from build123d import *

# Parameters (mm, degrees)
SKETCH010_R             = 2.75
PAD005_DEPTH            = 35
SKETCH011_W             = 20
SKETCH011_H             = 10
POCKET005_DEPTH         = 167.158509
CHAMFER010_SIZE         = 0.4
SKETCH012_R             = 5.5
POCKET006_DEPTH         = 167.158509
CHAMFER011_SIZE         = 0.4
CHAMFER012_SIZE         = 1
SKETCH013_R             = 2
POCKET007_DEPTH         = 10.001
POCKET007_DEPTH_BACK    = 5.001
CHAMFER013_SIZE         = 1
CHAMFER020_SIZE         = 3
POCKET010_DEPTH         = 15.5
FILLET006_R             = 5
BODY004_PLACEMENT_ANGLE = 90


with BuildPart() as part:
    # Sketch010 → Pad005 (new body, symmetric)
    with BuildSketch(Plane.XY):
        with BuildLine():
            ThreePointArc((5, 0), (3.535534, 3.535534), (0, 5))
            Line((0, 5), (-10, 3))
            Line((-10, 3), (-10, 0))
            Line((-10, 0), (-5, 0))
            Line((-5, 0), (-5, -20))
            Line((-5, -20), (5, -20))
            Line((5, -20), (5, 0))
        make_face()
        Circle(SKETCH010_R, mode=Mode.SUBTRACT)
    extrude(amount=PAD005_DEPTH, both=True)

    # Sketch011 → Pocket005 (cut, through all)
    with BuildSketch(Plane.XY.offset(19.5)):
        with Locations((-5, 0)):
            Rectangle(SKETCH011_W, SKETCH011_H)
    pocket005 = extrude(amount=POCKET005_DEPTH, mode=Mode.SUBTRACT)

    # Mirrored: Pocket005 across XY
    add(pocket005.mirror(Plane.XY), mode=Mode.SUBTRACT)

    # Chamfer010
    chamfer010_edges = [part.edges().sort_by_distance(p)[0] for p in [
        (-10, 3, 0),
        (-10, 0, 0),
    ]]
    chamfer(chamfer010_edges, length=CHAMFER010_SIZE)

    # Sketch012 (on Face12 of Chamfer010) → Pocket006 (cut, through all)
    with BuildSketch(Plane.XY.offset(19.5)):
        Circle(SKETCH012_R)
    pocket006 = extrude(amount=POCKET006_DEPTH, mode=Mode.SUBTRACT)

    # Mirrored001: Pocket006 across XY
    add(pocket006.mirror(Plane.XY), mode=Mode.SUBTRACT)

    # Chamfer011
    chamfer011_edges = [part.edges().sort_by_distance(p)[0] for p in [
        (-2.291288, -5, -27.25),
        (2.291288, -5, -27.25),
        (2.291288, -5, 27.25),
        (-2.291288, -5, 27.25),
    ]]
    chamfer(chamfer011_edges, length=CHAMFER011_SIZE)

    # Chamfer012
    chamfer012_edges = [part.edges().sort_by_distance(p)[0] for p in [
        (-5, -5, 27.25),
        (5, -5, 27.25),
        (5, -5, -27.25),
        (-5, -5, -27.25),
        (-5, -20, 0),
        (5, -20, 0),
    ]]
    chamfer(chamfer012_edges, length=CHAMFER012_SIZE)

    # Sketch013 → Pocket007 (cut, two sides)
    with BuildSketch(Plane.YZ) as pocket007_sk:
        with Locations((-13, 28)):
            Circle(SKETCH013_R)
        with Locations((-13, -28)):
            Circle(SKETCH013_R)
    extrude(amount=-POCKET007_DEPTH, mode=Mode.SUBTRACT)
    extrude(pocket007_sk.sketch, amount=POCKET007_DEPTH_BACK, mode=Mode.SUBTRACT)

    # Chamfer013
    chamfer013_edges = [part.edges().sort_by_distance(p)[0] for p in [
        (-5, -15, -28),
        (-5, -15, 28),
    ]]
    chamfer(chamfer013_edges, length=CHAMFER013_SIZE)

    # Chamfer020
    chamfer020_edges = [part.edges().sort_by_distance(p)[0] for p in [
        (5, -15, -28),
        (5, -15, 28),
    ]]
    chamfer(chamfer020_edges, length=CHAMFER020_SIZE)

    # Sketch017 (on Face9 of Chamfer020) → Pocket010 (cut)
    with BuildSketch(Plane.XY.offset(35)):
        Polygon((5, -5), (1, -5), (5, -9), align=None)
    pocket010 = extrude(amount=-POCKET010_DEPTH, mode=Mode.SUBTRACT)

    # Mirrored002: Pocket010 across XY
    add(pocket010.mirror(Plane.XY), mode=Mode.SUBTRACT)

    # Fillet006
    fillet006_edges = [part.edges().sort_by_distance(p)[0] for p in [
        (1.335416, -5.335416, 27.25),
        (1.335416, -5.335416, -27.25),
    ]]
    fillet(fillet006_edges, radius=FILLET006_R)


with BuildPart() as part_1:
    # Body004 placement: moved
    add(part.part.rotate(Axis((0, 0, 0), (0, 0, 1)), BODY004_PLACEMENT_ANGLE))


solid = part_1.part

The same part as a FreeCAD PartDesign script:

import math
import FreeCAD as App
import Part
import Sketcher
from FreeCAD import Vector
Q = App.Units.Quantity


def edges_at(feature, points):
    """Names of the edges that pass closest to the given points."""
    edges = feature.Shape.Edges
    near = lambda p: min(range(len(edges)), key=lambda i: edges[i].distToShape(Part.Vertex(*p))[0])
    return sorted({f"Edge{near(p) + 1}" for p in points})

doc = App.newDocument("Part")
params = doc.addObject("Spreadsheet::Sheet", "Params")
for row, (alias, value) in enumerate([
    ("sketch1_radius", "5 mm"),
    ("sketch1_diameter", "5.5 mm"),
    ("sketch1_width", "5 mm"),
    ("sketch1_height", "3 mm"),
    ("sketch1_height2", "20 mm"),
    ("pad1_length", "70 mm"),
    ("sketch2_width", "20 mm"),
    ("sketch2_height", "10 mm"),
    ("chamfer_size", "0.4 mm"),
    ("sketch3_diameter", "11 mm"),
    ("chamfer2_size", "0.4 mm"),
    ("chamfer3_size", "1 mm"),
    ("sketch4_diameter", "4 mm"),
    ("chamfer4_size", "1 mm"),
    ("chamfer5_size", "3 mm"),
    ("sketch5_width", "4 mm"),
    ("pocket4_length", "15.5 mm"),
    ("fillet_radius", "5 mm"),
], start=1):
    params.set(f"A{row}", alias)
    params.set(f"B{row}", "=" + value)
    params.setAlias(f"B{row}", alias)

body = doc.addObject("PartDesign::Body", "Body")

# Sketch on XY plane
sketch1 = body.newObject("Sketcher::SketchObject", "Sketch")
sketch1.AttachmentSupport = (doc.getObject("XY_Plane"), [""])
sketch1.MapMode = "FlatFace"
sketch1.addGeometry(Part.ArcOfCircle(Part.Circle(Vector(0, 0, 0), Vector(0, 0, 1), 5), math.radians(0), math.radians(90)), False)
sketch1.addGeometry(Part.LineSegment(Vector(0, 5, 0), Vector(-10, 3, 0)), False)
sketch1.addGeometry(Part.LineSegment(Vector(-10, 3, 0), Vector(-10, 0, 0)), False)
sketch1.addGeometry(Part.LineSegment(Vector(-10, 0, 0), Vector(-5, 0, 0)), False)
sketch1.addGeometry(Part.LineSegment(Vector(-5, 0, 0), Vector(-5, -20, 0)), False)
sketch1.addGeometry(Part.LineSegment(Vector(-5, -20, 0), Vector(5, -20, 0)), False)
sketch1.addGeometry(Part.LineSegment(Vector(5, -20, 0), Vector(5, 0, 0)), False)
sketch1.addGeometry(Part.Circle(Vector(0, 0, 0), Vector(0, 0, 1), 2.8), False)
sketch1.addConstraint(Sketcher.Constraint("Coincident", 0, 2, 1, 1))
sketch1.addConstraint(Sketcher.Constraint("Coincident", 1, 2, 2, 1))
sketch1.addConstraint(Sketcher.Constraint("Coincident", 2, 2, 3, 1))
sketch1.addConstraint(Sketcher.Constraint("Coincident", 3, 2, 4, 1))
sketch1.addConstraint(Sketcher.Constraint("Coincident", 4, 2, 5, 1))
sketch1.addConstraint(Sketcher.Constraint("Coincident", 5, 2, 6, 1))
sketch1.addConstraint(Sketcher.Constraint("Tangent", 6, 2, 0, 1))
sketch1.addConstraint(Sketcher.Constraint("Vertical", 2))
sketch1.addConstraint(Sketcher.Constraint("Horizontal", 3))
sketch1.addConstraint(Sketcher.Constraint("Vertical", 4))
sketch1.addConstraint(Sketcher.Constraint("Horizontal", 5))
sketch1.addConstraint(Sketcher.Constraint("Vertical", 6))
sketch1.addConstraint(Sketcher.Constraint("Coincident", 0, 3, -1, 1))
sketch1.addConstraint(Sketcher.Constraint("Coincident", 7, 3, -1, 1))
sketch1.addConstraint(Sketcher.Constraint("Symmetric", 3, 2, 6, 2, -1, 1))
sketch1.addConstraint(Sketcher.Constraint("PointOnObject", 0, 2, -2))
sketch1.addConstraint(Sketcher.Constraint("Radius", 0, Q("5 mm")))
sketch1.addConstraint(Sketcher.Constraint("Diameter", 7, Q("5.5 mm")))
sketch1.addConstraint(Sketcher.Constraint("DistanceX", 3, 1, 3, 2, Q("5 mm")))
sketch1.addConstraint(Sketcher.Constraint("DistanceY", 2, 2, 2, 1, Q("3 mm")))
sketch1.addConstraint(Sketcher.Constraint("DistanceY", 4, 2, 4, 1, Q("20 mm")))
sketch1.setExpression("Constraints[16]", "Params.sketch1_radius")
sketch1.setExpression("Constraints[17]", "Params.sketch1_diameter")
sketch1.setExpression("Constraints[18]", "Params.sketch1_width")
sketch1.setExpression("Constraints[19]", "Params.sketch1_height")
sketch1.setExpression("Constraints[20]", "Params.sketch1_height2")
pad1 = body.newObject("PartDesign::Pad", "Pad")
pad1.Profile = sketch1
pad1.setExpression("Length", "Params.pad1_length")
pad1.Midplane = True

# Sketch on XY plane
sketch2 = body.newObject("Sketcher::SketchObject", "Sketch001")
sketch2.AttachmentSupport = (doc.getObject("XY_Plane"), [""])
sketch2.MapMode = "FlatFace"
sketch2.AttachmentOffset = App.Placement(Vector(0, 0, 19.5), App.Rotation())
sketch2.addGeometry(Part.LineSegment(Vector(-15, 5, 0), Vector(-15, -5, 0)), False)
sketch2.addGeometry(Part.LineSegment(Vector(-15, -5, 0), Vector(5, -5, 0)), False)
sketch2.addGeometry(Part.LineSegment(Vector(5, -5, 0), Vector(5, 5, 0)), False)
sketch2.addGeometry(Part.LineSegment(Vector(5, 5, 0), Vector(-15, 5, 0)), False)
sketch2.addConstraint(Sketcher.Constraint("Coincident", 0, 2, 1, 1))
sketch2.addConstraint(Sketcher.Constraint("Coincident", 1, 2, 2, 1))
sketch2.addConstraint(Sketcher.Constraint("Coincident", 2, 2, 3, 1))
sketch2.addConstraint(Sketcher.Constraint("Coincident", 3, 2, 0, 1))
sketch2.addConstraint(Sketcher.Constraint("Vertical", 0))
sketch2.addConstraint(Sketcher.Constraint("Horizontal", 1))
sketch2.addConstraint(Sketcher.Constraint("Vertical", 2))
sketch2.addConstraint(Sketcher.Constraint("Horizontal", 3))
sketch2.addConstraint(Sketcher.Constraint("DistanceX", 1, 1, 1, 2, Q("20 mm")))
sketch2.addConstraint(Sketcher.Constraint("DistanceY", 0, 2, 0, 1, Q("10 mm")))
sketch2.addConstraint(Sketcher.Constraint("DistanceX", 0, 2, -1, 1, Q("15 mm")))
sketch2.addConstraint(Sketcher.Constraint("DistanceY", 0, 2, -1, 1, Q("5 mm")))
sketch2.setExpression("Constraints[8]", "Params.sketch2_width")
sketch2.setExpression("Constraints[9]", "Params.sketch2_height")
pocket1 = body.newObject("PartDesign::Pocket", "Pocket")
pocket1.Profile = sketch2
pocket1.Type = "ThroughAll"
pocket1.Reversed = True
doc.recompute()

mirrored = body.newObject("PartDesign::Mirrored", "Mirrored")
mirrored.Originals = [pocket1]
mirrored.MirrorPlane = (doc.getObject("XY_Plane"), [""])
body.Tip = mirrored
doc.recompute()

chamfer = body.newObject("PartDesign::Chamfer", "Chamfer")
chamfer.Base = (mirrored, edges_at(mirrored, [(-10, 3, 0), (-10, 0, 0)]))
chamfer.setExpression("Size", "Params.chamfer_size")

# Sketch on XY plane
sketch3 = body.newObject("Sketcher::SketchObject", "Sketch002")
sketch3.AttachmentSupport = (doc.getObject("XY_Plane"), [""])
sketch3.MapMode = "FlatFace"
sketch3.AttachmentOffset = App.Placement(Vector(0, 0, 19.5), App.Rotation())
sketch3.addGeometry(Part.Circle(Vector(0, 0, 0), Vector(0, 0, 1), 6), False)
sketch3.addConstraint(Sketcher.Constraint("Coincident", 0, 3, -1, 1))
sketch3.addConstraint(Sketcher.Constraint("Diameter", 0, Q("11 mm")))
sketch3.setExpression("Constraints[1]", "Params.sketch3_diameter")
pocket2 = body.newObject("PartDesign::Pocket", "Pocket001")
pocket2.Profile = sketch3
pocket2.Type = "ThroughAll"
pocket2.Reversed = True
doc.recompute()

mirrored2 = body.newObject("PartDesign::Mirrored", "Mirrored001")
mirrored2.Originals = [pocket2]
mirrored2.MirrorPlane = (doc.getObject("XY_Plane"), [""])
body.Tip = mirrored2
doc.recompute()

chamfer2 = body.newObject("PartDesign::Chamfer", "Chamfer001")
chamfer2.Base = (mirrored2, edges_at(mirrored2, [
    (-2.291, -5, -27.25),
    (2.291, -5, -27.25),
    (2.291, -5, 27.25),
    (-2.291, -5, 27.25),
]))
chamfer2.setExpression("Size", "Params.chamfer2_size")
doc.recompute()

chamfer3 = body.newObject("PartDesign::Chamfer", "Chamfer002")
chamfer3.Base = (chamfer2, edges_at(chamfer2, [
    (-5, -5, 27.25),
    (5, -5, 27.25),
    (5, -5, -27.25),
    (-5, -5, -27.25),
    (-5, -20, 0),
    (5, -20, 0),
]))
chamfer3.setExpression("Size", "Params.chamfer3_size")

# Sketch on YZ plane
sketch4 = body.newObject("Sketcher::SketchObject", "Sketch003")
sketch4.AttachmentSupport = (doc.getObject("YZ_Plane"), [""])
sketch4.MapMode = "FlatFace"
sketch4.addGeometry(Part.Circle(Vector(-13, 28, 0), Vector(0, 0, 1), 2), False)
sketch4.addGeometry(Part.Circle(Vector(-13, -28, 0), Vector(0, 0, 1), 2), False)
sketch4.addConstraint(Sketcher.Constraint("Equal", 0, 1))
sketch4.addConstraint(Sketcher.Constraint("Symmetric", 0, 3, 1, 3, -1))
sketch4.addConstraint(Sketcher.Constraint("Diameter", 0, Q("4 mm")))
sketch4.addConstraint(Sketcher.Constraint("DistanceX", 0, 3, -1, 1, Q("13 mm")))
sketch4.addConstraint(Sketcher.Constraint("DistanceY", -1, 1, 0, 3, Q("28 mm")))
sketch4.setExpression("Constraints[2]", "Params.sketch4_diameter")
pocket3 = body.newObject("PartDesign::Pocket", "Pocket002")
pocket3.Profile = sketch4
pocket3.Type = "ThroughAll"
pocket3.Midplane = True
doc.recompute()

chamfer4 = body.newObject("PartDesign::Chamfer", "Chamfer003")
chamfer4.Base = (pocket3, edges_at(pocket3, [(-5, -15, -28), (-5, -15, 28)]))
chamfer4.setExpression("Size", "Params.chamfer4_size")
doc.recompute()

chamfer5 = body.newObject("PartDesign::Chamfer", "Chamfer004")
chamfer5.Base = (chamfer4, edges_at(chamfer4, [(5, -15, -28), (5, -15, 28)]))
chamfer5.setExpression("Size", "Params.chamfer5_size")

# Sketch on XY plane
sketch5 = body.newObject("Sketcher::SketchObject", "Sketch004")
sketch5.AttachmentSupport = (doc.getObject("XY_Plane"), [""])
sketch5.MapMode = "FlatFace"
sketch5.AttachmentOffset = App.Placement(Vector(0, 0, 35), App.Rotation())
sketch5.addGeometry(Part.LineSegment(Vector(5, -5, 0), Vector(1, -5, 0)), False)
sketch5.addGeometry(Part.LineSegment(Vector(1, -5, 0), Vector(5, -9, 0)), False)
sketch5.addGeometry(Part.LineSegment(Vector(5, -9, 0), Vector(5, -5, 0)), False)
sketch5.addConstraint(Sketcher.Constraint("Coincident", 0, 2, 1, 1))
sketch5.addConstraint(Sketcher.Constraint("Coincident", 1, 2, 2, 1))
sketch5.addConstraint(Sketcher.Constraint("Coincident", 2, 2, 0, 1))
sketch5.addConstraint(Sketcher.Constraint("Horizontal", 0))
sketch5.addConstraint(Sketcher.Constraint("Vertical", 2))
sketch5.addConstraint(Sketcher.Constraint("Equal", 0, 2))
sketch5.addConstraint(Sketcher.Constraint("DistanceX", 0, 2, 0, 1, Q("4 mm")))
sketch5.addConstraint(Sketcher.Constraint("DistanceX", -1, 1, 0, 2, Q("1 mm")))
sketch5.addConstraint(Sketcher.Constraint("DistanceY", 0, 2, -1, 1, Q("5 mm")))
sketch5.setExpression("Constraints[6]", "Params.sketch5_width")
pocket4 = body.newObject("PartDesign::Pocket", "Pocket003")
pocket4.Profile = sketch5
pocket4.setExpression("Length", "Params.pocket4_length")
doc.recompute()

mirrored3 = body.newObject("PartDesign::Mirrored", "Mirrored002")
mirrored3.Originals = [pocket4]
mirrored3.MirrorPlane = (doc.getObject("XY_Plane"), [""])
body.Tip = mirrored3
doc.recompute()

fillet = body.newObject("PartDesign::Fillet", "Fillet")
fillet.Base = (mirrored3, edges_at(mirrored3, [(1.335, -5.335, 27.25), (1.335, -5.335, -27.25)]))
fillet.setExpression("Radius", "Params.fillet_radius")
body2 = doc.addObject("PartDesign::Body", "Body001")
doc.recompute()

body.Placement = App.Placement(Vector(0, 0, 0), App.Rotation(Vector(0, 0, 1), 90))
boolean = body2.newObject("PartDesign::Boolean", "Boolean")
boolean.Type = "Fuse"
boolean.addObjects([body])

doc.recompute()
